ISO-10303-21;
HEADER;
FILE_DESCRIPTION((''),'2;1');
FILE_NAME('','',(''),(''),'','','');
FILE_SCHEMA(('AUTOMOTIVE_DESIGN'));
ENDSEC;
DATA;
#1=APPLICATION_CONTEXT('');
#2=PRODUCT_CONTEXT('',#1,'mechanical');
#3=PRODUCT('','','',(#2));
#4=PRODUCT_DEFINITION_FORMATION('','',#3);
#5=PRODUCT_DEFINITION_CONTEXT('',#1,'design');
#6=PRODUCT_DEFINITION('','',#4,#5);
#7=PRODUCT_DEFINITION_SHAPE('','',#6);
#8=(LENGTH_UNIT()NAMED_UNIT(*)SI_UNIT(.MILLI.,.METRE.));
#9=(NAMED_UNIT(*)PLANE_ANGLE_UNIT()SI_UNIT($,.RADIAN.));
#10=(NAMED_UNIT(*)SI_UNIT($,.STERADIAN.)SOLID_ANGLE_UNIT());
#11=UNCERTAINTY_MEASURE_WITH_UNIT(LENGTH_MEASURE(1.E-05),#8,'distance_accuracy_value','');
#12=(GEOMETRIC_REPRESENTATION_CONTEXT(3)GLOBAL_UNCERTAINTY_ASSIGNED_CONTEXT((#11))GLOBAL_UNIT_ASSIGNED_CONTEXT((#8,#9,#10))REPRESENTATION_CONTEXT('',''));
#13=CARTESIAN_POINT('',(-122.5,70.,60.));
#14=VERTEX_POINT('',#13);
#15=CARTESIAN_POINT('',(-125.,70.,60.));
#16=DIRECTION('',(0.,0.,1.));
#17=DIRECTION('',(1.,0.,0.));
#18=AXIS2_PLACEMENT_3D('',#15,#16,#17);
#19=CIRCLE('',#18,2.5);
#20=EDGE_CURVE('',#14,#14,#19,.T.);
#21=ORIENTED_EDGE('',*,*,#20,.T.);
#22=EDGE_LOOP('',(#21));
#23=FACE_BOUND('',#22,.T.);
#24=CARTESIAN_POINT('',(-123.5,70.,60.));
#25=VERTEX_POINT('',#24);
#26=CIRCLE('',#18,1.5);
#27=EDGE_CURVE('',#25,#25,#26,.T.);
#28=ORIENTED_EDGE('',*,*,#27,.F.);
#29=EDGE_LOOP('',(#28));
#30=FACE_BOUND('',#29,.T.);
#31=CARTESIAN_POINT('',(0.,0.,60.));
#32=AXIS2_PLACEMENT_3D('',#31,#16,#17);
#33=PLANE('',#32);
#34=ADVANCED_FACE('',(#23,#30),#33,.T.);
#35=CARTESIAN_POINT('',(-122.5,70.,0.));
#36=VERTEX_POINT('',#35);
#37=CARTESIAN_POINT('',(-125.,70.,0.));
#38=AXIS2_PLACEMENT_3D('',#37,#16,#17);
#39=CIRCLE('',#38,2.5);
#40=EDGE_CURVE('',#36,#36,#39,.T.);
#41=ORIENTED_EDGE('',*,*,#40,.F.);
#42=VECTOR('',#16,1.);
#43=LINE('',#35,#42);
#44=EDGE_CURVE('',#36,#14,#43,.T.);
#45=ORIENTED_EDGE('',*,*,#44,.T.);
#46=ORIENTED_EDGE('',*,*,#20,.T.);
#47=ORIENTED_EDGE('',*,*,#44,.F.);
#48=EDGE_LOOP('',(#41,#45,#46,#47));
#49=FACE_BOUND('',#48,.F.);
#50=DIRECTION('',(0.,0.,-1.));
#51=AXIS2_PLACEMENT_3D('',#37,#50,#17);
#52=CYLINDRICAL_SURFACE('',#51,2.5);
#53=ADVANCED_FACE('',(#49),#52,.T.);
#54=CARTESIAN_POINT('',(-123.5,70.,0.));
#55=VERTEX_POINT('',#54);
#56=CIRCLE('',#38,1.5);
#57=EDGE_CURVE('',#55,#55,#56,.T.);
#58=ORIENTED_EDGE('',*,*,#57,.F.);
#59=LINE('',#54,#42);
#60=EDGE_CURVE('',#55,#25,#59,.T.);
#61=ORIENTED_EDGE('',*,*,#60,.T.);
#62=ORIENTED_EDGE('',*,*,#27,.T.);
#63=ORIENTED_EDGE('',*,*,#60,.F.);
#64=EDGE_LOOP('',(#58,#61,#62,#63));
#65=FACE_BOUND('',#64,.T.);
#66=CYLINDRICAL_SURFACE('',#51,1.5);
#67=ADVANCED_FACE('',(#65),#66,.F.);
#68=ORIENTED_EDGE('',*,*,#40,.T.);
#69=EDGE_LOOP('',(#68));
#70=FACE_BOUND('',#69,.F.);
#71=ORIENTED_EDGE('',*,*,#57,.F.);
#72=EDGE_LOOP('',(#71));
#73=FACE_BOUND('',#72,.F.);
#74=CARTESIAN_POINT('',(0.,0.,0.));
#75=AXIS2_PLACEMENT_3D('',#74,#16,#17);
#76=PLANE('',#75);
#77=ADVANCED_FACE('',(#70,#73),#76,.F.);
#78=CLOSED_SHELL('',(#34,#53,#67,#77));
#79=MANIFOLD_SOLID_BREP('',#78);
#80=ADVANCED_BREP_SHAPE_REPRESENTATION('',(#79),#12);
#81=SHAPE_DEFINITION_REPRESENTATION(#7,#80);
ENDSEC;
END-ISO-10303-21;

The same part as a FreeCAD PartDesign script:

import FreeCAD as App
import Part
import Sketcher

V = App.Vector
Q = App.Units.Quantity

doc = App.newDocument("Part")
body = doc.addObject("PartDesign::Body", "Body")

# Sketch on XY plane
sketch1 = body.newObject("Sketcher::SketchObject", "Sketch")
sketch1.AttachmentSupport = (doc.getObject("XY_Plane"), [""])
sketch1.MapMode = "FlatFace"
sketch1.addGeometry([
    Part.Circle(V(-125, 70, 0), V(0, 0, 1), 2.5),
    Part.Circle(V(-125, 70, 0), V(0, 0, 1), 1.5),
], False)
sketch1.addConstraint([
    Sketcher.Constraint("Coincident", 1, 3, 0, 3),
    Sketcher.Constraint("Diameter", 0, Q("5 mm")),
    Sketcher.Constraint("Diameter", 1, Q("3 mm")),
    Sketcher.Constraint("DistanceX", 0, 3, -1, 1, Q("125 mm")),
    Sketcher.Constraint("DistanceY", -1, 1, 0, 3, Q("70 mm")),
])
pad1 = body.newObject("PartDesign::Pad", "Pad")
pad1.Profile = sketch1
pad1.Length = 60

doc.recompute()
